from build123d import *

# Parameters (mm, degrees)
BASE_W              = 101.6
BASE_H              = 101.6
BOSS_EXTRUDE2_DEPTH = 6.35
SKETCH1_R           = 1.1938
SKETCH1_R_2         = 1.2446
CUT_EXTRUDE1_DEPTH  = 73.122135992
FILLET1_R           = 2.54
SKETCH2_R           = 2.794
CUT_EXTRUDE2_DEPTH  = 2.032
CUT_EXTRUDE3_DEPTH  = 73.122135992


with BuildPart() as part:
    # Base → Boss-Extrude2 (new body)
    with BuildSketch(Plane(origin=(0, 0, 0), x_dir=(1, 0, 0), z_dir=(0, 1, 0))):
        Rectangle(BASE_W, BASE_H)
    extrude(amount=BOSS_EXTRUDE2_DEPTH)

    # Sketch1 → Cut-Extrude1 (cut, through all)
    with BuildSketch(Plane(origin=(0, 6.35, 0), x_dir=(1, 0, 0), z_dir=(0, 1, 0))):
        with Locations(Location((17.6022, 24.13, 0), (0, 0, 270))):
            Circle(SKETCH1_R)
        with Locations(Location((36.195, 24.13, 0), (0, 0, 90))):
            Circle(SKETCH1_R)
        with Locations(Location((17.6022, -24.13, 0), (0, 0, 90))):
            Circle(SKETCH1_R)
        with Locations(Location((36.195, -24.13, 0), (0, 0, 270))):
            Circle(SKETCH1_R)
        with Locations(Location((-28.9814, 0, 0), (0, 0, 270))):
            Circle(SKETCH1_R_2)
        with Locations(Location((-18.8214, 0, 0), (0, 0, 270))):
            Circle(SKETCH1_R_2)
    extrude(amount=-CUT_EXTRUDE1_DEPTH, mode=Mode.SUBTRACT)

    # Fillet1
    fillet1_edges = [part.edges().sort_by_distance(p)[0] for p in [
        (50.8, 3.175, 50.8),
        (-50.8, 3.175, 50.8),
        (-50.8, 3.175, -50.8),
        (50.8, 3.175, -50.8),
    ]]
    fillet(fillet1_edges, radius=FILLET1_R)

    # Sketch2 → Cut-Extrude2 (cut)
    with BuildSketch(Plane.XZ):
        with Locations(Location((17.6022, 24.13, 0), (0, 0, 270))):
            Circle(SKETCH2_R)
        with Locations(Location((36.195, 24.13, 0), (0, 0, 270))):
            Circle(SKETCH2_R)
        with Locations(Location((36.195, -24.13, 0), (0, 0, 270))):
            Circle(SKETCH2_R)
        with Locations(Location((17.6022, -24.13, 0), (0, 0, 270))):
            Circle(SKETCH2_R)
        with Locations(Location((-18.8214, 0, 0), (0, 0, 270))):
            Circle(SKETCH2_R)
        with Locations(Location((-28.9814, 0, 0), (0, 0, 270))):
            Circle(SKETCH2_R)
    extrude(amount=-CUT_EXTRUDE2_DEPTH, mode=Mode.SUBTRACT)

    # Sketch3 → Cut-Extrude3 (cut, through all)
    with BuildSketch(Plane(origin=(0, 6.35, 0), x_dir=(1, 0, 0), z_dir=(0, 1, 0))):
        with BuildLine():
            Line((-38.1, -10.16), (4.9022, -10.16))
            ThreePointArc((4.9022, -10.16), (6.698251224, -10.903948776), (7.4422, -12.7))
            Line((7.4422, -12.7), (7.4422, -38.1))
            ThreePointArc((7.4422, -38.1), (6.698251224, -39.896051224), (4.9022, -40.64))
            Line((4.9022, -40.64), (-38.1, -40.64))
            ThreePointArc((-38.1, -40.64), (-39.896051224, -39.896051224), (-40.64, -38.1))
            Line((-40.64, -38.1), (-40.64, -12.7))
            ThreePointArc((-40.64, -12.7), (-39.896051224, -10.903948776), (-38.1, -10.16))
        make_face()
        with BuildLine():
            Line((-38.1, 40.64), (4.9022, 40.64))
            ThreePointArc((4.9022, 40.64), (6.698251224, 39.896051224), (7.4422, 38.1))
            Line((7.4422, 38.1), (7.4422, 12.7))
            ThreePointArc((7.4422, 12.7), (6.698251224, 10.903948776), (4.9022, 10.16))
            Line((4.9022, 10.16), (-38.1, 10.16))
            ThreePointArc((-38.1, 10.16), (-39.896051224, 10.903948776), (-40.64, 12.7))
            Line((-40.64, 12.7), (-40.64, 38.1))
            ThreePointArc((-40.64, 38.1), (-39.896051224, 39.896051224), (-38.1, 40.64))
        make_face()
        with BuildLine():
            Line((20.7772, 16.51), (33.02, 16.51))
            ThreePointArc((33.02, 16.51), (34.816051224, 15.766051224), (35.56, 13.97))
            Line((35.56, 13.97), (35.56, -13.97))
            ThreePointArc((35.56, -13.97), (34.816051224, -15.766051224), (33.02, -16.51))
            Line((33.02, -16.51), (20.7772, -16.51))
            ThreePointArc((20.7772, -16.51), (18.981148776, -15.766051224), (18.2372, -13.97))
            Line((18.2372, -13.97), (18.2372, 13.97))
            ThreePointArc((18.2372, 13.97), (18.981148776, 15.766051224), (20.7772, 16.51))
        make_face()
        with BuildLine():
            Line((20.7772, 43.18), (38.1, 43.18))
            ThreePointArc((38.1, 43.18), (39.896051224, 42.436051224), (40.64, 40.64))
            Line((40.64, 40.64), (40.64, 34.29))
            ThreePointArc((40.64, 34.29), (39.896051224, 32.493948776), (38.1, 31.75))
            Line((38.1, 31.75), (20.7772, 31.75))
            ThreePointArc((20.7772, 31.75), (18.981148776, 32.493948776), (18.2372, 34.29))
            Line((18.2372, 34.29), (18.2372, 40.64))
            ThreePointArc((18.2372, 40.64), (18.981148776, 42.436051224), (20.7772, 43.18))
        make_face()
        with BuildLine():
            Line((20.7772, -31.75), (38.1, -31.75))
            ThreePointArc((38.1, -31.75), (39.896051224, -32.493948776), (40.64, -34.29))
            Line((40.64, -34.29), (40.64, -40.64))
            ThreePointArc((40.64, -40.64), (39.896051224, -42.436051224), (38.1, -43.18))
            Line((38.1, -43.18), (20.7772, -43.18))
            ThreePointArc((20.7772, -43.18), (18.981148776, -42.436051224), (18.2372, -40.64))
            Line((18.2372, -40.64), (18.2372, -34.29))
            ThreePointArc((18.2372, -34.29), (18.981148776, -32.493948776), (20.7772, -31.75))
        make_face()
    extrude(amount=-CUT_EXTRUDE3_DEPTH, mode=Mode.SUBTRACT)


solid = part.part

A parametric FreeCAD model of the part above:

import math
import FreeCAD as App
import Part
import Sketcher
from FreeCAD import Vector
Q = App.Units.Quantity


def edges_at(feature, points):
    """Names of the edges that pass closest to the given points."""
    edges = feature.Shape.Edges
    near = lambda p: min(range(len(edges)), key=lambda i: edges[i].distToShape(Part.Vertex(*p))[0])
    return sorted({f"Edge{near(p) + 1}" for p in points})

doc = App.newDocument("Part")
params = doc.addObject("Spreadsheet::Sheet", "Params")
for row, (alias, value) in enumerate([
    ("sketch1_width", "4 in"),
    ("pad1_length", "0.25 in"),
    ("sketch2_diameter", "0.094 in"),
    ("sketch2_diameter2", "0.098 in"),
    ("fillet_radius", "0.1 in"),
    ("sketch3_diameter", "0.22 in"),
    ("pocket2_length", "0.08 in"),
    ("sketch4_radius", "0.1 in"),
    ("sketch4_height", "1 in"),
    ("sketch4_height2", "1.1 in"),
    ("sketch4_height3", "0.25 in"),
    ("sketch4_width", "1.693 in"),
], start=1):
    params.set(f"A{row}", alias)
    params.set(f"B{row}", "=" + value)
    params.setAlias(f"B{row}", alias)

body = doc.addObject("PartDesign::Body", "Body")

# Sketch on XZ plane
sketch1 = body.newObject("Sketcher::SketchObject", "Sketch")
sketch1.AttachmentSupport = (doc.getObject("XZ_Plane"), [""])
sketch1.MapMode = "FlatFace"
sketch1.addGeometry([
    Part.LineSegment(Vector(-51, -51, 0), Vector(-51, 51, 0)),
    Part.LineSegment(Vector(-51, 51, 0), Vector(51, 51, 0)),
    Part.LineSegment(Vector(51, 51, 0), Vector(51, -51, 0)),
    Part.LineSegment(Vector(51, -51, 0), Vector(-51, -51, 0)),
], False)
sketch1.addConstraint([
    Sketcher.Constraint("Coincident", 0, 2, 1, 1),
    Sketcher.Constraint("Coincident", 1, 2, 2, 1),
    Sketcher.Constraint("Coincident", 2, 2, 3, 1),
    Sketcher.Constraint("Coincident", 3, 2, 0, 1),
    Sketcher.Constraint("Vertical", 0),
    Sketcher.Constraint("Horizontal", 1),
    Sketcher.Constraint("Vertical", 2),
    Sketcher.Constraint("Horizontal", 3),
    Sketcher.Constraint("Symmetric", 0, 2, 2, 2, -1, 1),
    Sketcher.Constraint("Equal", 3, 0),
    Sketcher.Constraint("DistanceX", 1, 1, 1, 2, Q("4 in")),
])
sketch1.setExpression("Constraints[10]", "Params.sketch1_width")
pad1 = body.newObject("PartDesign::Pad", "Pad")
pad1.Profile = sketch1
pad1.setExpression("Length", "Params.pad1_length")
pad1.Reversed = True

# Sketch on XZ plane
sketch2 = body.newObject("Sketcher::SketchObject", "Sketch001")
sketch2.AttachmentSupport = (doc.getObject("XZ_Plane"), [""])
sketch2.MapMode = "FlatFace"
sketch2.AttachmentOffset = App.Placement(Vector(0, 0, -0.25 * 25.4), App.Rotation())
sketch2.addGeometry([
    Part.Circle(Vector(17.6, -24.1, 0), Vector(0, 0, 1), 1.2),  # 0
    Part.Circle(Vector(36.2, -24.1, 0), Vector(0, 0, 1), 1.2),  # 1
    Part.Circle(Vector(17.6, 24.1, 0), Vector(0, 0, 1), 1.2),  # 2
    Part.Circle(Vector(36.2, 24.1, 0), Vector(0, 0, 1), 1.2),  # 3
    Part.Circle(Vector(-29, 0, 0), Vector(0, 0, 1), 1.2),  # 4
    Part.Circle(Vector(-18.8, 0, 0), Vector(0, 0, 1), 1.2),  # 5
], False)
sketch2.addConstraint([
    Sketcher.Constraint("Equal", 0, 1),
    Sketcher.Constraint("Equal", 1, 2),
    Sketcher.Constraint("Equal", 2, 3),
    Sketcher.Constraint("Equal", 4, 5),
    Sketcher.Constraint("Symmetric", 0, 3, 2, 3, -1),
    Sketcher.Constraint("Symmetric", 1, 3, 3, 3, -1),
    Sketcher.Constraint("PointOnObject", 4, 3, -1),
    Sketcher.Constraint("PointOnObject", 5, 3, -1),
    Sketcher.Constraint("Horizontal", 0, 3, 1, 3),
    Sketcher.Constraint("Diameter", 0, Q("0.094 in")),
    Sketcher.Constraint("Diameter", 4, Q("0.098 in")),
    Sketcher.Constraint("DistanceY", 0, 3, 2, 3, Q("1.9 in")),
    Sketcher.Constraint("DistanceX", 4, 3, 5, 3, Q("0.4 in")),
    Sketcher.Constraint("DistanceX", -1, 1, 0, 3, Q("0.693 in")),
    Sketcher.Constraint("DistanceX", -1, 1, 1, 3, Q("1.425 in")),
    Sketcher.Constraint("DistanceX", 4, 3, -1, 1, Q("1.141 in")),
])
sketch2.setExpression("Constraints[9]", "Params.sketch2_diameter")
sketch2.setExpression("Constraints[10]", "Params.sketch2_diameter2")
pocket1 = body.newObject("PartDesign::Pocket", "Pocket")
pocket1.Profile = sketch2
pocket1.Type = "ThroughAll"
pocket1.Reversed = True
doc.recompute()

fillet = body.newObject("PartDesign::Fillet", "Fillet")
fillet.Base = (pocket1, edges_at(pocket1, [
    (50.8, 3.175, 50.8),
    (-50.8, 3.175, 50.8),
    (-50.8, 3.175, -50.8),
    (50.8, 3.175, -50.8),
]))
fillet.setExpression("Radius", "Params.fillet_radius")

# Sketch on XZ plane
sketch3 = body.newObject("Sketcher::SketchObject", "Sketch002")
sketch3.AttachmentSupport = (doc.getObject("XZ_Plane"), [""])
sketch3.MapMode = "FlatFace"
sketch3.addGeometry([
    Part.Circle(Vector(17.6, 24.1, 0), Vector(0, 0, 1), 2.8),  # 0
    Part.Circle(Vector(36.2, 24.1, 0), Vector(0, 0, 1), 2.8),  # 1
    Part.Circle(Vector(36.2, -24.1, 0), Vector(0, 0, 1), 2.8),  # 2
    Part.Circle(Vector(17.6, -24.1, 0), Vector(0, 0, 1), 2.8),  # 3
    Part.Circle(Vector(-18.8, 0, 0), Vector(0, 0, 1), 2.8),  # 4
    Part.Circle(Vector(-29, 0, 0), Vector(0, 0, 1), 2.8),  # 5
], False)
sketch3.addConstraint([
    Sketcher.Constraint("Equal", 0, 1),
    Sketcher.Constraint("Equal", 1, 2),
    Sketcher.Constraint("Equal", 2, 3),
    Sketcher.Constraint("Equal", 3, 4),
    Sketcher.Constraint("Equal", 4, 5),
    Sketcher.Constraint("Symmetric", 1, 3, 2, 3, -1),
    Sketcher.Constraint("Symmetric", 0, 3, 3, 3, -1),
    Sketcher.Constraint("PointOnObject", 4, 3, -1),
    Sketcher.Constraint("PointOnObject", 5, 3, -1),
    Sketcher.Constraint("Horizontal", 0, 3, 1, 3),
    Sketcher.Constraint("Diameter", 0, Q("0.22 in")),
    Sketcher.Constraint("DistanceY", 2, 3, 1, 3, Q("1.9 in")),
    Sketcher.Constraint("DistanceX", 5, 3, 4, 3, Q("0.4 in")),
    Sketcher.Constraint("DistanceX", -1, 1, 0, 3, Q("0.693 in")),
    Sketcher.Constraint("DistanceX", -1, 1, 1, 3, Q("1.425 in")),
    Sketcher.Constraint("DistanceX", 4, 3, -1, 1, Q("0.741 in")),
])
sketch3.setExpression("Constraints[10]", "Params.sketch3_diameter")
pocket2 = body.newObject("PartDesign::Pocket", "Pocket001")
pocket2.Profile = sketch3
pocket2.setExpression("Length", "Params.pocket2_length")

# Sketch on XZ plane
sketch4 = body.newObject("Sketcher::SketchObject", "Sketch003")
sketch4.AttachmentSupport = (doc.getObject("XZ_Plane"), [""])
sketch4.MapMode = "FlatFace"
sketch4.AttachmentOffset = App.Placement(Vector(0, 0, -0.25 * 25.4), App.Rotation())
sketch4.addGeometry([
    Part.LineSegment(Vector(4.9, 10.2, 0), Vector(-38.1, 10.2, 0)),  # 0
    Part.ArcOfCircle(Part.Circle(Vector(-38.1, 12.7, 0), Vector(0, 0, 1), 2.5), math.radians(-180), math.radians(-90)),  # 1
    Part.LineSegment(Vector(-40.6, 12.7, 0), Vector(-40.6, 38.1, 0)),  # 2
    Part.ArcOfCircle(Part.Circle(Vector(-38.1, 38.1, 0), Vector(0, 0, 1), 2.5), math.radians(90), math.radians(180)),  # 3
    Part.LineSegment(Vector(-38.1, 40.6, 0), Vector(4.9, 40.6, 0)),  # 4
    Part.ArcOfCircle(Part.Circle(Vector(4.9, 38.1, 0), Vector(0, 0, 1), 2.5), math.radians(0), math.radians(90)),  # 5
    Part.LineSegment(Vector(7.4, 38.1, 0), Vector(7.4, 12.7, 0)),  # 6
    Part.ArcOfCircle(Part.Circle(Vector(4.9, 12.7, 0), Vector(0, 0, 1), 2.5), math.radians(-90), math.radians(0)),  # 7
    Part.LineSegment(Vector(4.9, -40.6, 0), Vector(-38.1, -40.6, 0)),  # 8
    Part.ArcOfCircle(Part.Circle(Vector(-38.1, -38.1, 0), Vector(0, 0, 1), 2.5), math.radians(-180), math.radians(-90)),  # 9
    Part.LineSegment(Vector(-40.6, -38.1, 0), Vector(-40.6, -12.7, 0)),  # 10
    Part.ArcOfCircle(Part.Circle(Vector(-38.1, -12.7, 0), Vector(0, 0, 1), 2.5), math.radians(90), math.radians(180)),  # 11
    Part.LineSegment(Vector(-38.1, -10.2, 0), Vector(4.9, -10.2, 0)),  # 12
    Part.ArcOfCircle(Part.Circle(Vector(4.9, -12.7, 0), Vector(0, 0, 1), 2.5), math.radians(0), math.radians(90)),  # 13
    Part.LineSegment(Vector(7.4, -12.7, 0), Vector(7.4, -38.1, 0)),  # 14
    Part.ArcOfCircle(Part.Circle(Vector(4.9, -38.1, 0), Vector(0, 0, 1), 2.5), math.radians(-90), math.radians(0)),  # 15
    Part.LineSegment(Vector(33, -16.5, 0), Vector(20.8, -16.5, 0)),  # 16
    Part.ArcOfCircle(Part.Circle(Vector(20.8, -14, 0), Vector(0, 0, 1), 2.5), math.radians(-180), math.radians(-90)),  # 17
    Part.LineSegment(Vector(18.2, -14, 0), Vector(18.2, 14, 0)),  # 18
    Part.ArcOfCircle(Part.Circle(Vector(20.8, 14, 0), Vector(0, 0, 1), 2.5), math.radians(90), math.radians(180)),  # 19
    Part.LineSegment(Vector(20.8, 16.5, 0), Vector(33, 16.5, 0)),  # 20
    Part.ArcOfCircle(Part.Circle(Vector(33, 14, 0), Vector(0, 0, 1), 2.5), math.radians(0), math.radians(90)),  # 21
    Part.LineSegment(Vector(35.6, 14, 0), Vector(35.6, -14, 0)),  # 22
    Part.ArcOfCircle(Part.Circle(Vector(33, -14, 0), Vector(0, 0, 1), 2.5), math.radians(-90), math.radians(0)),  # 23
    Part.LineSegment(Vector(38.1, -43.2, 0), Vector(20.8, -43.2, 0)),  # 24
    Part.ArcOfCircle(Part.Circle(Vector(20.8, -40.6, 0), Vector(0, 0, 1), 2.5), math.radians(-180), math.radians(-90)),  # 25
    Part.LineSegment(Vector(18.2, -40.6, 0), Vector(18.2, -34.3, 0)),  # 26
    Part.ArcOfCircle(Part.Circle(Vector(20.8, -34.3, 0), Vector(0, 0, 1), 2.5), math.radians(90), math.radians(180)),  # 27
    Part.LineSegment(Vector(20.8, -31.8, 0), Vector(38.1, -31.8, 0)),  # 28
    Part.ArcOfCircle(Part.Circle(Vector(38.1, -34.3, 0), Vector(0, 0, 1), 2.5), math.radians(0), math.radians(90)),  # 29
    Part.LineSegment(Vector(40.6, -34.3, 0), Vector(40.6, -40.6, 0)),  # 30
    Part.ArcOfCircle(Part.Circle(Vector(38.1, -40.6, 0), Vector(0, 0, 1), 2.5), math.radians(-90), math.radians(0)),  # 31
    Part.LineSegment(Vector(38.1, 31.8, 0), Vector(20.8, 31.8, 0)),  # 32
    Part.ArcOfCircle(Part.Circle(Vector(20.8, 34.3, 0), Vector(0, 0, 1), 2.5), math.radians(-180), math.radians(-90)),  # 33
    Part.LineSegment(Vector(18.2, 34.3, 0), Vector(18.2, 40.6, 0)),  # 34
    Part.ArcOfCircle(Part.Circle(Vector(20.8, 40.6, 0), Vector(0, 0, 1), 2.5), math.radians(90), math.radians(180)),  # 35
    Part.LineSegment(Vector(20.8, 43.2, 0), Vector(38.1, 43.2, 0)),  # 36
    Part.ArcOfCircle(Part.Circle(Vector(38.1, 40.6, 0), Vector(0, 0, 1), 2.5), math.radians(0), math.radians(90)),  # 37
    Part.LineSegment(Vector(40.6, 40.6, 0), Vector(40.6, 34.3, 0)),  # 38
    Part.ArcOfCircle(Part.Circle(Vector(38.1, 34.3, 0), Vector(0, 0, 1), 2.5), math.radians(-90), math.radians(0)),  # 39
], False)
sketch4.addConstraint([
    Sketcher.Constraint("Tangent", 0, 2, 1, 2),
    Sketcher.Constraint("Tangent", 1, 1, 2, 1),
    Sketcher.Constraint("Tangent", 2, 2, 3, 2),
    Sketcher.Constraint("Tangent", 3, 1, 4, 1),
    Sketcher.Constraint("Tangent", 4, 2, 5, 2),
    Sketcher.Constraint("Tangent", 5, 1, 6, 1),
    Sketcher.Constraint("Tangent", 6, 2, 7, 2),
    Sketcher.Constraint("Tangent", 7, 1, 0, 1),
    Sketcher.Constraint("Tangent", 8, 2, 9, 2),
    Sketcher.Constraint("Tangent", 9, 1, 10, 1),
    Sketcher.Constraint("Tangent", 10, 2, 11, 2),
    Sketcher.Constraint("Tangent", 11, 1, 12, 1),
    Sketcher.Constraint("Tangent", 12, 2, 13, 2),
    Sketcher.Constraint("Tangent", 13, 1, 14, 1),
    Sketcher.Constraint("Tangent", 14, 2, 15, 2),
    Sketcher.Constraint("Tangent", 15, 1, 8, 1),
    Sketcher.Constraint("Tangent", 16, 2, 17, 2),
    Sketcher.Constraint("Tangent", 17, 1, 18, 1),
    Sketcher.Constraint("Tangent", 18, 2, 19, 2),
    Sketcher.Constraint("Tangent", 19, 1, 20, 1),
    Sketcher.Constraint("Tangent", 20, 2, 21, 2),
    Sketcher.Constraint("Tangent", 21, 1, 22, 1),
    Sketcher.Constraint("Tangent", 22, 2, 23, 2),
    Sketcher.Constraint("Tangent", 23, 1, 16, 1),
    Sketcher.Constraint("Tangent", 24, 2, 25, 2),
    Sketcher.Constraint("Tangent", 25, 1, 26, 1),
    Sketcher.Constraint("Tangent", 26, 2, 27, 2),
    Sketcher.Constraint("Tangent", 27, 1, 28, 1),
    Sketcher.Constraint("Tangent", 28, 2, 29, 2),
    Sketcher.Constraint("Tangent", 29, 1, 30, 1),
    Sketcher.Constraint("Tangent", 30, 2, 31, 2),
    Sketcher.Constraint("Tangent", 31, 1, 24, 1),
    Sketcher.Constraint("Tangent", 32, 2, 33, 2),
    Sketcher.Constraint("Tangent", 33, 1, 34, 1),
    Sketcher.Constraint("Tangent", 34, 2, 35, 2),
    Sketcher.Constraint("Tangent", 35, 1, 36, 1),
    Sketcher.Constraint("Tangent", 36, 2, 37, 2),
    Sketcher.Constraint("Tangent", 37, 1, 38, 1),
    Sketcher.Constraint("Tangent", 38, 2, 39, 2),
    Sketcher.Constraint("Tangent", 39, 1, 32, 1),
    Sketcher.Constraint("Horizontal", 0),
    Sketcher.Constraint("Vertical", 2),
    Sketcher.Constraint("Horizontal", 4),
    Sketcher.Constraint("Vertical", 6),
    Sketcher.Constraint("Horizontal", 8),
    Sketcher.Constraint("Vertical", 10),
    Sketcher.Constraint("Horizontal", 12),
    Sketcher.Constraint("Vertical", 14),
    Sketcher.Constraint("Horizontal", 16),
    Sketcher.Constraint("Vertical", 18),
    Sketcher.Constraint("Horizontal", 20),
    Sketcher.Constraint("Vertical", 22),
    Sketcher.Constraint("Horizontal", 24),
    Sketcher.Constraint("Vertical", 26),
    Sketcher.Constraint("Horizontal", 28),
    Sketcher.Constraint("Vertical", 30),
    Sketcher.Constraint("Horizontal", 32),
    Sketcher.Constraint("Vertical", 34),
    Sketcher.Constraint("Horizontal", 36),
    Sketcher.Constraint("Vertical", 38),
    Sketcher.Constraint("Equal", 1, 3),
    Sketcher.Constraint("Equal", 3, 5),
    Sketcher.Constraint("Equal", 5, 7),
    Sketcher.Constraint("Equal", 7, 9),
    Sketcher.Constraint("Equal", 9, 11),
    Sketcher.Constraint("Equal", 11, 13),
    Sketcher.Constraint("Equal", 13, 15),
    Sketcher.Constraint("Equal", 15, 17),
    Sketcher.Constraint("Equal", 17, 19),
    Sketcher.Constraint("Equal", 19, 21),
    Sketcher.Constraint("Equal", 21, 23),
    Sketcher.Constraint("Equal", 23, 25),
    Sketcher.Constraint("Equal", 25, 27),
    Sketcher.Constraint("Equal", 27, 29),
    Sketcher.Constraint("Equal", 29, 31),
    Sketcher.Constraint("Equal", 31, 33),
    Sketcher.Constraint("Equal", 33, 35),
    Sketcher.Constraint("Equal", 35, 37),
    Sketcher.Constraint("Equal", 37, 39),
    Sketcher.Constraint("Symmetric", 3, 3, 9, 3, -1),
    Sketcher.Constraint("Symmetric", 7, 3, 13, 3, -1),
    Sketcher.Constraint("Symmetric", 27, 3, 33, 3, -1),
    Sketcher.Constraint("Symmetric", 31, 3, 37, 3, -1),
    Sketcher.Constraint("Horizontal", 37, 3, 3, 1),
    Sketcher.Constraint("Vertical", 19, 3, 25, 3),
    Sketcher.Constraint("Radius", 1, Q("0.1 in")),
    Sketcher.Constraint("DistanceY", 2, 1, 2, 2, Q("1 in")),
    Sketcher.Constraint("DistanceY", 18, 1, 18, 2, Q("1.1 in")),
    Sketcher.Constraint("DistanceY", 9, 3, 1, 3, Q("2 in")),
    Sketcher.Constraint("DistanceY", 26, 1, 26, 2, Q("0.25 in")),
    Sketcher.Constraint("DistanceX", 1, 3, -1, 1, Q("1.5 in")),
    Sketcher.Constraint("DistanceX", -1, 1, 21, 3, Q("1.3 in")),
    Sketcher.Constraint("DistanceX", -1, 1, 29, 3, Q("1.5 in")),
    Sketcher.Constraint("DistanceY", 27, 3, 17, 3, Q("0.8 in")),
    Sketcher.Constraint("DistanceX", 0, 2, 0, 1, Q("1.693 in")),
    Sketcher.Constraint("DistanceX", 16, 2, 16, 1, Q("0.482 in")),
])
sketch4.setExpression("Constraints[85]", "Params.sketch4_radius")
sketch4.setExpression("Constraints[86]", "Params.sketch4_height")
sketch4.setExpression("Constraints[87]", "Params.sketch4_height2")
sketch4.setExpression("Constraints[89]", "Params.sketch4_height3")
sketch4.setExpression("Constraints[94]", "Params.sketch4_width")
pocket3 = body.newObject("PartDesign::Pocket", "Pocket002")
pocket3.Profile = sketch4
pocket3.Type = "ThroughAll"
pocket3.Reversed = True

doc.recompute()
